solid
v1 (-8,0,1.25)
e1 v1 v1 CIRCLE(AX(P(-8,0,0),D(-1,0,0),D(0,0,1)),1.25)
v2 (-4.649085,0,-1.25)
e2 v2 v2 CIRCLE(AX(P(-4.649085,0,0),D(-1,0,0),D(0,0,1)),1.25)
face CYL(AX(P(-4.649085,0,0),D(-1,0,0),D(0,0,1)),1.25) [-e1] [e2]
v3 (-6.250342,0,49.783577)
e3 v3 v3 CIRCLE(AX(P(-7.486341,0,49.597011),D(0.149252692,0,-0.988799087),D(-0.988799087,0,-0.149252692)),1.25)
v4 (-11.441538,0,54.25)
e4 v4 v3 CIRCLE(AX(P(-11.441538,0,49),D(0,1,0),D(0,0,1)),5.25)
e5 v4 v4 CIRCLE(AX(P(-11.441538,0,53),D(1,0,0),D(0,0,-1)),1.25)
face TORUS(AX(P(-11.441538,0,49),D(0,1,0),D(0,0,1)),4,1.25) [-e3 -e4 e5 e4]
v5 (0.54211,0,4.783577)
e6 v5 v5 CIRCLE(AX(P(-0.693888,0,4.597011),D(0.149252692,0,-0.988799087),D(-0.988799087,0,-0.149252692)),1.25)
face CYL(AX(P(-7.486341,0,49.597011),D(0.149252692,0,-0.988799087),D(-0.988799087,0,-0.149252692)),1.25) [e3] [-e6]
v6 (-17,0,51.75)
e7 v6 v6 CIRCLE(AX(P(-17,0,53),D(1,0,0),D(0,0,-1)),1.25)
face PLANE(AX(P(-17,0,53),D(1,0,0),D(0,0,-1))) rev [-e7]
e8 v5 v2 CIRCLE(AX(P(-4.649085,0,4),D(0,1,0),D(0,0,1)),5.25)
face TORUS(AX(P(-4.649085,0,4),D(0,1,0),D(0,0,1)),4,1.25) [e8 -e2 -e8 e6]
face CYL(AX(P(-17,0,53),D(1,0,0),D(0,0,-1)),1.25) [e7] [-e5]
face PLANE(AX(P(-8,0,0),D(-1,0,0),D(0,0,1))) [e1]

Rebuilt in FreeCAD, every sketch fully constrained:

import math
import FreeCAD as App
import Part
import Sketcher

V = App.Vector
Q = App.Units.Quantity

doc = App.newDocument("Part")
body = doc.addObject("PartDesign::Body", "Body")

sketch1 = body.newObject("Sketcher::SketchObject", "Sketch")
sketch1.AttachmentSupport = (doc.getObject("YZ_Plane"), [""])
sketch1.MapMode = "FlatFace"
sketch1.AttachmentOffset = App.Placement(V(0, 0, -8), App.Rotation())
sketch1.addGeometry(Part.Circle(V(0, 0, 0), V(0, 0, 1), 1.2), False)
sketch1.addConstraint([
    Sketcher.Constraint("Coincident", 0, 3, -1, 1),
    Sketcher.Constraint("Diameter", 0, Q("2.5 mm")),
])

sketch2 = body.newObject("Sketcher::SketchObject", "Sketch001")
sketch2.AttachmentSupport = (doc.getObject("XZ_Plane"), [""])
sketch2.MapMode = "FlatFace"
sketch2.addGeometry([
    Part.LineSegment(V(-8, 0, 0), V(-4.6, 0, 0)),
    Part.ArcOfCircle(Part.Circle(V(-4.6, 4, 0), V(0, 0, 1), 4), math.radians(-90), math.radians(9)),
    Part.LineSegment(V(-0.7, 4.6, 0), V(-7.5, 49.6, 0)),
    Part.ArcOfCircle(Part.Circle(V(-11.4, 49, 0), V(0, 0, 1), 4), math.radians(9), math.radians(90)),
    Part.LineSegment(V(-11.4, 53, 0), V(-17, 53, 0)),
], False)
sketch2.addConstraint([
    Sketcher.Constraint("Tangent", 0, 2, 1, 1),
    Sketcher.Constraint("Tangent", 1, 2, 2, 1),
    Sketcher.Constraint("Tangent", 2, 2, 3, 1),
    Sketcher.Constraint("Tangent", 3, 2, 4, 1),
    Sketcher.Constraint("Horizontal", 0),
    Sketcher.Constraint("Horizontal", 4),
    Sketcher.Constraint("Equal", 1, 3),
    Sketcher.Constraint("PointOnObject", 0, 1, -1),
    Sketcher.Constraint("Radius", 1, Q("4 mm")),
    Sketcher.Constraint("DistanceY", -1, 1, 3, 3, Q("49 mm")),
    Sketcher.Constraint("DistanceX", 0, 1, -1, 1, Q("8 mm")),
    Sketcher.Constraint("DistanceX", 4, 2, -1, 1, Q("17 mm")),
    Sketcher.Constraint("Distance", 2, Q("45.509751 mm")),
    Sketcher.Constraint("DistanceX", 0, 1, 0, 2, Q("3.350915 mm")),
])
doc.recompute()

additivepipe = body.newObject("PartDesign::AdditivePipe", "AdditivePipe")
additivepipe.Profile = sketch1
additivepipe.Spine = (sketch2, ["Edge1", "Edge2", "Edge3", "Edge4", "Edge5"])

doc.recompute()
